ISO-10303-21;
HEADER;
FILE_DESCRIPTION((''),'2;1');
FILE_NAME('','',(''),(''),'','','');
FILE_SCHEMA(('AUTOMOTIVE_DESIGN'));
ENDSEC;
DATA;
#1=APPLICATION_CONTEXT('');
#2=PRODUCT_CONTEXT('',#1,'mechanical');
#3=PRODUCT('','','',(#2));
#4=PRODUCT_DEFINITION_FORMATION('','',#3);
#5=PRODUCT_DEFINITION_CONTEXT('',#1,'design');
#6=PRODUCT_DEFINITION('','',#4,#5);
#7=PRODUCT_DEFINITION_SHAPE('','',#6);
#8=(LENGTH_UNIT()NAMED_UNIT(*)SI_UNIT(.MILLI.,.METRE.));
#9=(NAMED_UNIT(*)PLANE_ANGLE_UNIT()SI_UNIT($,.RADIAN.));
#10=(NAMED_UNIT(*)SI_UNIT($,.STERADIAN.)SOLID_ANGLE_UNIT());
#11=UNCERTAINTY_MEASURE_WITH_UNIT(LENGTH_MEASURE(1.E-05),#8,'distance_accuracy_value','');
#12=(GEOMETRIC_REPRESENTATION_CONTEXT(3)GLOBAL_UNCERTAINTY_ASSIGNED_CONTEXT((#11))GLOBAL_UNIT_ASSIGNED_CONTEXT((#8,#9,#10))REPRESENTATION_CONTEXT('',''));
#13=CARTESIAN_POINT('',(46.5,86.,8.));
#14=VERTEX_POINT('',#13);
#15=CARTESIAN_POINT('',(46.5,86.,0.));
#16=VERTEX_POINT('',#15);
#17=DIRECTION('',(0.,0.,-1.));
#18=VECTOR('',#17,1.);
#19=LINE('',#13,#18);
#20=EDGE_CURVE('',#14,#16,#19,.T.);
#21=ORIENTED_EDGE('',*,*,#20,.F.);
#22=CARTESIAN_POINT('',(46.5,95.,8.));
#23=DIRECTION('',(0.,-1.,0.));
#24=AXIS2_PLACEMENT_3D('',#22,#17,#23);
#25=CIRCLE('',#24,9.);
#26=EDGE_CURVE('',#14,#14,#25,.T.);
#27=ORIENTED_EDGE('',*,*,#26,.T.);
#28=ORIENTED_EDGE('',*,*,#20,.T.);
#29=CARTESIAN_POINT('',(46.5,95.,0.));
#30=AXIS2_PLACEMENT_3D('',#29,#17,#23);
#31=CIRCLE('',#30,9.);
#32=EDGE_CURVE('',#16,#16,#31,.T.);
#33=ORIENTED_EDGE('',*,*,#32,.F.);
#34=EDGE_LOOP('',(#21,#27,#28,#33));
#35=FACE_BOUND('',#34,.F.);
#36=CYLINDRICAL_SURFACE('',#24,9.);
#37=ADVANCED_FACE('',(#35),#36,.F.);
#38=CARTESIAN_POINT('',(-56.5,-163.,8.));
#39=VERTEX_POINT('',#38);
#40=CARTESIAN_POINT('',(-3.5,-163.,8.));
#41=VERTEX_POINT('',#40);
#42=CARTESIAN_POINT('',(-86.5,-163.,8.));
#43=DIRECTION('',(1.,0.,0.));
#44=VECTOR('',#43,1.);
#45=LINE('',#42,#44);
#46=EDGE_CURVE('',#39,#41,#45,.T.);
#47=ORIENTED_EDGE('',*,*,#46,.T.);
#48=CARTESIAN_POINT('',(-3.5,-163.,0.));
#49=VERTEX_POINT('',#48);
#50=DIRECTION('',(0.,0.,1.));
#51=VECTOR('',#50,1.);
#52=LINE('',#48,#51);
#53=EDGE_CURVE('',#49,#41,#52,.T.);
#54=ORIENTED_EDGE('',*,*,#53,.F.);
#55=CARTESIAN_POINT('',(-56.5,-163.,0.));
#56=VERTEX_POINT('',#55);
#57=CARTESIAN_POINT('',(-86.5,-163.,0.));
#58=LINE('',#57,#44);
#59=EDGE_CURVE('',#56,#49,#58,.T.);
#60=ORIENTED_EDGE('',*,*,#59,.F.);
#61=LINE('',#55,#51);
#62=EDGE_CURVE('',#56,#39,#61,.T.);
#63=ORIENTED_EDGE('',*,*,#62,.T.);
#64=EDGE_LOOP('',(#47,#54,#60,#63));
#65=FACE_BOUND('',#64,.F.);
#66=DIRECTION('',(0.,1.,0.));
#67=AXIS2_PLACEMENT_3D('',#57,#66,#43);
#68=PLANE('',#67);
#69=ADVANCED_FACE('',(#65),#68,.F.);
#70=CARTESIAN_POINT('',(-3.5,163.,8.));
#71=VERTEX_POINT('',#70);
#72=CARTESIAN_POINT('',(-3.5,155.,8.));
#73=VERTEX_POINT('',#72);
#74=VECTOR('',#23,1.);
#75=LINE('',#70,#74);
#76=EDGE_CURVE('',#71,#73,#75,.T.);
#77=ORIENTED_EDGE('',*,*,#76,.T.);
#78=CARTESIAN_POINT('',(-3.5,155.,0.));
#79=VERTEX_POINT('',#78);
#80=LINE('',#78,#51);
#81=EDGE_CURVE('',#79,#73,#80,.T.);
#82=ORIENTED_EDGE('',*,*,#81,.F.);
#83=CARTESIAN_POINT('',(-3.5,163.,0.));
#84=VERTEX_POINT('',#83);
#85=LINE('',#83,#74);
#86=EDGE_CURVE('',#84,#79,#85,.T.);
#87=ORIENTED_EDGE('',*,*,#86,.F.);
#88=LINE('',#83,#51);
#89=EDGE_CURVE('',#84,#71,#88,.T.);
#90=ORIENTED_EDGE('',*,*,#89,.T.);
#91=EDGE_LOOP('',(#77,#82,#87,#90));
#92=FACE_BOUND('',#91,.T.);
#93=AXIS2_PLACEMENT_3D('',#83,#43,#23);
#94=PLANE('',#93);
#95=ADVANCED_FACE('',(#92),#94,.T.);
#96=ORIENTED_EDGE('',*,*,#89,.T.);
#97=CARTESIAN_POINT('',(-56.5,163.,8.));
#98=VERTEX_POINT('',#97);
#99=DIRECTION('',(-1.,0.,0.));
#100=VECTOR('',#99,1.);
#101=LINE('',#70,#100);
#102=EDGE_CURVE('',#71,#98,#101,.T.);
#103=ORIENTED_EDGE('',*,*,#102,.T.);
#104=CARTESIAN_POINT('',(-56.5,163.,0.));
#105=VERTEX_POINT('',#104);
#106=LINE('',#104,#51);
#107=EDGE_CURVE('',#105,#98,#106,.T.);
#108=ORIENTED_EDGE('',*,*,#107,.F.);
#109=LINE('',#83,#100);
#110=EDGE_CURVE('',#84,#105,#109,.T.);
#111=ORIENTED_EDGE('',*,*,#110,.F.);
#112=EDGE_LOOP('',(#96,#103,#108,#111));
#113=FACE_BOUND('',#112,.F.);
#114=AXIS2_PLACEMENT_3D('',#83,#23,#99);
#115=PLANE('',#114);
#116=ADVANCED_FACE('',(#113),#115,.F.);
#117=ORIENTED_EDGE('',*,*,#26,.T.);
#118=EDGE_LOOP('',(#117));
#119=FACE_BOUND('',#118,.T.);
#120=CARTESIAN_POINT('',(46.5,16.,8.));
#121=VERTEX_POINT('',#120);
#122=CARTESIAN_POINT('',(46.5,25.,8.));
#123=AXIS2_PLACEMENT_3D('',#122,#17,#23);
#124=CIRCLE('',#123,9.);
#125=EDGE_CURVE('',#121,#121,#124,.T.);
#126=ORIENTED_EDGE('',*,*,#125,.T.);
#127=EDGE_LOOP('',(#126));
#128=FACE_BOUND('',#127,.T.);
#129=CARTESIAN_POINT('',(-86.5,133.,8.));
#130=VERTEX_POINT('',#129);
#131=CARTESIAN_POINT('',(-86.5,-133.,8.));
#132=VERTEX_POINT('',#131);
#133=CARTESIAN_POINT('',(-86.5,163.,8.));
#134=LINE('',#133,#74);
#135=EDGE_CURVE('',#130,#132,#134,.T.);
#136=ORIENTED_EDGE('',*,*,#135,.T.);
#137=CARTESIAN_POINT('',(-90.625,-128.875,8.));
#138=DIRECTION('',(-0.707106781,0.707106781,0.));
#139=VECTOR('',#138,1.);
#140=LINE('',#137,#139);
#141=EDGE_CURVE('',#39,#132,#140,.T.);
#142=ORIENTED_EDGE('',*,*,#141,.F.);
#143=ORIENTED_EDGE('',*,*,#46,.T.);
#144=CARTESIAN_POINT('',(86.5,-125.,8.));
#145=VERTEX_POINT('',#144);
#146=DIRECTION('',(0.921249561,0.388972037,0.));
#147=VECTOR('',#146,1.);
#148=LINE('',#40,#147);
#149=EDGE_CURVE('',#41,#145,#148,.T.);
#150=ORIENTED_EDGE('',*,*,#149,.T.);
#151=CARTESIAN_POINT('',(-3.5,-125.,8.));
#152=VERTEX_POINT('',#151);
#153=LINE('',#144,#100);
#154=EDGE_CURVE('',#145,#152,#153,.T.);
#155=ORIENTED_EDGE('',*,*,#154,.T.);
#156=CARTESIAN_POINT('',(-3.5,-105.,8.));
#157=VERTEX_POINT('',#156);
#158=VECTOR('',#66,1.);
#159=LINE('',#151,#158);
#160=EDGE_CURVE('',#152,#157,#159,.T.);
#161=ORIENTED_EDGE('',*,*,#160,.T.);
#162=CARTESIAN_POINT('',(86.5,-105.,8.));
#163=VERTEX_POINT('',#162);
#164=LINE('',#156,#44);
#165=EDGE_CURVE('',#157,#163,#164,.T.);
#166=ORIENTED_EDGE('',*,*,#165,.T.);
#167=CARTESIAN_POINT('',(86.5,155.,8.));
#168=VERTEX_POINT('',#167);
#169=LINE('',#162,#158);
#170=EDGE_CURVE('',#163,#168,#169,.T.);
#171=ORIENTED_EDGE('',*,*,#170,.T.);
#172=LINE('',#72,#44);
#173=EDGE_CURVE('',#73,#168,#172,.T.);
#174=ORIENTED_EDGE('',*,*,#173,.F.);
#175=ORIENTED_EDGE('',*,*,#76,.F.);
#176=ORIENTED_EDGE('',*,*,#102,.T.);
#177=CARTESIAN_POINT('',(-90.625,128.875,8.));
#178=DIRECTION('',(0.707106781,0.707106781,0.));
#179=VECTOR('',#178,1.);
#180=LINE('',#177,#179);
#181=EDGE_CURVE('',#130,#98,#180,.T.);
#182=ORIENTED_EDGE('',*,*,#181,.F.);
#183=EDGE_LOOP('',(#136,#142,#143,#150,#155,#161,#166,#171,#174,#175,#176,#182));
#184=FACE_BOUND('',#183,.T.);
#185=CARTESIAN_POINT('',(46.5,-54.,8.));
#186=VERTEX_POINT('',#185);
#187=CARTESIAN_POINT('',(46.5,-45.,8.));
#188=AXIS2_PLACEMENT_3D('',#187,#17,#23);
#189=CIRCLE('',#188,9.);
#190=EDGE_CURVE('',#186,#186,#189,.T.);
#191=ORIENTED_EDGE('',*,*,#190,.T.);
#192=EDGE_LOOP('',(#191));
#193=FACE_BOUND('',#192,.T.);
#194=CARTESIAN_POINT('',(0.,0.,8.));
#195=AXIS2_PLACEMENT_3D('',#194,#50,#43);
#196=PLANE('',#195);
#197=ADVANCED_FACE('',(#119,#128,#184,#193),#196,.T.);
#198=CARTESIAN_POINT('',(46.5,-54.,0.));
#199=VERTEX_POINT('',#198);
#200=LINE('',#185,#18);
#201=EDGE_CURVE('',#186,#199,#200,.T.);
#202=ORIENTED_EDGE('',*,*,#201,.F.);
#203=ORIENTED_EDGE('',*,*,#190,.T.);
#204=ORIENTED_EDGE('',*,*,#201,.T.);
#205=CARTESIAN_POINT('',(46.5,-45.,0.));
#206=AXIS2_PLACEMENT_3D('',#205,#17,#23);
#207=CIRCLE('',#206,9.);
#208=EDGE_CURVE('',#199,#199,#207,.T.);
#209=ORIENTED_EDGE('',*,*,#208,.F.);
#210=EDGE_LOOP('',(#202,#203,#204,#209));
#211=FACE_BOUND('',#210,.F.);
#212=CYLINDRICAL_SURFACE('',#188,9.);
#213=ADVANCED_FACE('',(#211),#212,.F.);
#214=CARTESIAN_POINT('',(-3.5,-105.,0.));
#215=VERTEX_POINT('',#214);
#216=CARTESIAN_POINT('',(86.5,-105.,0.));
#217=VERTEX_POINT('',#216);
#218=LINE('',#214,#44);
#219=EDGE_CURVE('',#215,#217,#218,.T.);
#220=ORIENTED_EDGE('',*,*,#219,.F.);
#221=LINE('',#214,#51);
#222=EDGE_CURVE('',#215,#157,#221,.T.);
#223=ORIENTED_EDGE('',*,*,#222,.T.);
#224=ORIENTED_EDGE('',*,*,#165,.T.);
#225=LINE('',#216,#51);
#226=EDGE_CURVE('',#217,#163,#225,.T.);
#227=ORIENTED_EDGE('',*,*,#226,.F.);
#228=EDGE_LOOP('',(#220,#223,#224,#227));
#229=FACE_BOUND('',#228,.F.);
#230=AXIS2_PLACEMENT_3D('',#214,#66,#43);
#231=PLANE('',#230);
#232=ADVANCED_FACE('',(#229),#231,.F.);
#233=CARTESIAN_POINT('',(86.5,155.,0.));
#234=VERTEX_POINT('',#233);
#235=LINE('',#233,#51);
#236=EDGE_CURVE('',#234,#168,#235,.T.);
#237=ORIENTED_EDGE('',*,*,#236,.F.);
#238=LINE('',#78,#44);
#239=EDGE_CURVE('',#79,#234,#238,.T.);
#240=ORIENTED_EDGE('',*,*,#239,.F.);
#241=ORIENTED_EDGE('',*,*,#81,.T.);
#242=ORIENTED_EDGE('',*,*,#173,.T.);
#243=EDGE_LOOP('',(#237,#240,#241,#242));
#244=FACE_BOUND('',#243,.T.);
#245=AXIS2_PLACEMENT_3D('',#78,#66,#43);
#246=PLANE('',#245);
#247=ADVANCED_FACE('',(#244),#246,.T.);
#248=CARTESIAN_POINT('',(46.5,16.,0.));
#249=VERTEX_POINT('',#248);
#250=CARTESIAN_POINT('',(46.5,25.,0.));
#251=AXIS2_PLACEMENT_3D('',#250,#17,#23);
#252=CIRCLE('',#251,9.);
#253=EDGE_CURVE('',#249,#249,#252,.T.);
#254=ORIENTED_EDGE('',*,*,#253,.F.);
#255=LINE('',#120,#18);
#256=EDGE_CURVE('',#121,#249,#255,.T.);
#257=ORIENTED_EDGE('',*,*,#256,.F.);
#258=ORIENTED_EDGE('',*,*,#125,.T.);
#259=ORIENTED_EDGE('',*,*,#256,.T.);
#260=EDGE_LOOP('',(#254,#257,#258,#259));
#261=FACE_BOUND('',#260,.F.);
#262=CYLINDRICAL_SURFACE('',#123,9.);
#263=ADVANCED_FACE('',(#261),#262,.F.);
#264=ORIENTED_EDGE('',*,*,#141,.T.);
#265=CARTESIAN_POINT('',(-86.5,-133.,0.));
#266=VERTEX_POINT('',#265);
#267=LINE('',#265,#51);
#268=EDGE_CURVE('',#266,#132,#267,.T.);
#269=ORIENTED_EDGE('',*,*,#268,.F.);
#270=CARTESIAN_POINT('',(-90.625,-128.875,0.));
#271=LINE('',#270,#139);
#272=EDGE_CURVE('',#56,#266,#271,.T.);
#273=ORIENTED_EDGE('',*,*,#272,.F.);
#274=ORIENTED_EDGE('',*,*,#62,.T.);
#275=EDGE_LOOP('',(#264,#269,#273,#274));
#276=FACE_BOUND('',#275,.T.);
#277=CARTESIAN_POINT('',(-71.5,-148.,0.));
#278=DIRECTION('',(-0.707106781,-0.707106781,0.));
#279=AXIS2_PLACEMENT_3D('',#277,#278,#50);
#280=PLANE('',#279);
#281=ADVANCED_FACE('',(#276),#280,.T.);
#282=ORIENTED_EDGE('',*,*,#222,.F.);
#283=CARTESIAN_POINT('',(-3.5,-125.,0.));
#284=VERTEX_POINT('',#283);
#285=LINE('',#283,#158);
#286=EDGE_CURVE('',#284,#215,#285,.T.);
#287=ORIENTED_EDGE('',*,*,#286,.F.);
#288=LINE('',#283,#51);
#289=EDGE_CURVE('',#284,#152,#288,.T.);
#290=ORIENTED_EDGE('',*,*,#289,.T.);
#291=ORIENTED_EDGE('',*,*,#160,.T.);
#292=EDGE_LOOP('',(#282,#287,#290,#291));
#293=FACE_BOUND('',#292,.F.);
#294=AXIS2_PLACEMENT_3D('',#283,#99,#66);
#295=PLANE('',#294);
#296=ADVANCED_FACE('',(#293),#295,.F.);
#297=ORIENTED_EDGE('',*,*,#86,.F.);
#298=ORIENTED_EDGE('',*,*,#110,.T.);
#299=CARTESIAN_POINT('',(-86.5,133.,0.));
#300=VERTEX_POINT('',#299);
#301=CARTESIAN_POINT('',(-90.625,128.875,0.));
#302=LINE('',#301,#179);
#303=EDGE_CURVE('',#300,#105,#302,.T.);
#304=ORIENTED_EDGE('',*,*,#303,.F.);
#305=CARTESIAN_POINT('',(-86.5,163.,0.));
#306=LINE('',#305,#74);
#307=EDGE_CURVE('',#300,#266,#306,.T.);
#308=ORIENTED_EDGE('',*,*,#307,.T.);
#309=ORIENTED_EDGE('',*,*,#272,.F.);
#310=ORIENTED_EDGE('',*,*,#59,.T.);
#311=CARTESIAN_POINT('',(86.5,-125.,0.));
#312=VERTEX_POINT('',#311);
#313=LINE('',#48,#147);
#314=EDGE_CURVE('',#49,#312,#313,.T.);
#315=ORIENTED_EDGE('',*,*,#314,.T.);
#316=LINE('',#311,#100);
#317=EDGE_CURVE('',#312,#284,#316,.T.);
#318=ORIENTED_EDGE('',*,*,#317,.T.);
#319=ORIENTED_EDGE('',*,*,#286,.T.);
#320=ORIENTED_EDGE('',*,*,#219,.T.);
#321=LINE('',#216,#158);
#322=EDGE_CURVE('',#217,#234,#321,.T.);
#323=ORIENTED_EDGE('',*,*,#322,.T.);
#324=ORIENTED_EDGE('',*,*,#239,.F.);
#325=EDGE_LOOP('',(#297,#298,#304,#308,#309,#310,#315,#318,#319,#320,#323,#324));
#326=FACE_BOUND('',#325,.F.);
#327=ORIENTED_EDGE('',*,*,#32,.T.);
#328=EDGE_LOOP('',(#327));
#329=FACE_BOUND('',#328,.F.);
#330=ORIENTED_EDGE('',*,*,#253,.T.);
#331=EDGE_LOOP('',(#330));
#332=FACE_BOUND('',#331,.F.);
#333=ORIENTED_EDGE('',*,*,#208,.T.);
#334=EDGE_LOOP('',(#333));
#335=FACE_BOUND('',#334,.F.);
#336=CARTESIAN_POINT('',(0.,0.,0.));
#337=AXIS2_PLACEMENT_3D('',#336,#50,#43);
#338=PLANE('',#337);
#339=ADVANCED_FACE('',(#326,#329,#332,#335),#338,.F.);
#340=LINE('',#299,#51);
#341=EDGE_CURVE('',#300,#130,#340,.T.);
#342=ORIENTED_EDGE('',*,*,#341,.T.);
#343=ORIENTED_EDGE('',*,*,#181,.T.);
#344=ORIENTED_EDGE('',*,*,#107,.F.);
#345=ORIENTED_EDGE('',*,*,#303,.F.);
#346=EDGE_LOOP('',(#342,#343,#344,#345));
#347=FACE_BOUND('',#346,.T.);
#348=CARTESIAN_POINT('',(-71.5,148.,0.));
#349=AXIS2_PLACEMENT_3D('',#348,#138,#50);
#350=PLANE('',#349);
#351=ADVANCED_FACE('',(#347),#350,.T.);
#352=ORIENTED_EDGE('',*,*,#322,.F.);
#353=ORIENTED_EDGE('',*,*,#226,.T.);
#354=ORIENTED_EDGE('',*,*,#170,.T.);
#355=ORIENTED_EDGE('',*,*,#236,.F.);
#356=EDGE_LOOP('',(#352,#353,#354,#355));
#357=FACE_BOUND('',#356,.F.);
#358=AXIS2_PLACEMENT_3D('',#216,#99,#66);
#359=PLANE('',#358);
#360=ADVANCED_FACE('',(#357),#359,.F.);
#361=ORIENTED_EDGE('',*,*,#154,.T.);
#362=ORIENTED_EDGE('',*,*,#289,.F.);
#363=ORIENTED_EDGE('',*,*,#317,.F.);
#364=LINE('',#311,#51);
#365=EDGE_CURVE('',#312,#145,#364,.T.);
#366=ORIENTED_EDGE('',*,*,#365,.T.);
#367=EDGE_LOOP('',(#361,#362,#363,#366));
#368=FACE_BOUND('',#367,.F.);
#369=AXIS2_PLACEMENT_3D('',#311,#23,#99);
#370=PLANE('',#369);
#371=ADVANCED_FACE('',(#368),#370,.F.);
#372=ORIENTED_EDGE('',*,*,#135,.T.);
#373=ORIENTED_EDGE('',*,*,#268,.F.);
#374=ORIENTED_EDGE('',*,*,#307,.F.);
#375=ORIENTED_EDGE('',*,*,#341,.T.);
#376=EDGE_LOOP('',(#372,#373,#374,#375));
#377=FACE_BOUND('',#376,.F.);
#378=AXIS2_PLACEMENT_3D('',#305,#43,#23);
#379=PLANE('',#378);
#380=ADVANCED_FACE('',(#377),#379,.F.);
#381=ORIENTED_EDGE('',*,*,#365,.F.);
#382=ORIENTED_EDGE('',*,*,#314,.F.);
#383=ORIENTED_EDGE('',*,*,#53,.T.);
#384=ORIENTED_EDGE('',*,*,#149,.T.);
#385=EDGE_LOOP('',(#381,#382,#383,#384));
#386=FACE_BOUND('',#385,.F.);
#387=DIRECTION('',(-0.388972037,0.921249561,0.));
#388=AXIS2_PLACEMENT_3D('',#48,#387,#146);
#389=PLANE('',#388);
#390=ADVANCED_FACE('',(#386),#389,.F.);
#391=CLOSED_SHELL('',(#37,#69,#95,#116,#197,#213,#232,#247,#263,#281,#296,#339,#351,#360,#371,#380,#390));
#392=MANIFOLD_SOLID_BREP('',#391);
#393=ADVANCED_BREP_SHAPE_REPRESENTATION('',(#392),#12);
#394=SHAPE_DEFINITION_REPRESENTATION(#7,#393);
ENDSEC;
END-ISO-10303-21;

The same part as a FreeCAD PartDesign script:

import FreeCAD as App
import Part
import Sketcher
from FreeCAD import Vector
Q = App.Units.Quantity


def edges_at(feature, points):
    """Names of the edges that pass closest to the given points."""
    edges = feature.Shape.Edges
    near = lambda p: min(range(len(edges)), key=lambda i: edges[i].distToShape(Part.Vertex(*p))[0])
    return sorted({f"Edge{near(p) + 1}" for p in points})

doc = App.newDocument("Part")
params = doc.addObject("Spreadsheet::Sheet", "Params")
for row, (alias, value) in enumerate([
    ("sketch1_width", "83 mm"),
    ("sketch1_width2", "90 mm"),
    ("sketch1_height", "326 mm"),
    ("sketch1_height2", "20 mm"),
    ("sketch1_height3", "8 mm"),
    ("pad1_length", "8 mm"),
    ("chamfer_size", "30 mm"),
    ("sketch2_diameter", "18 mm"),
    ("hole_diameter", "18 mm"),
], start=1):
    params.set(f"A{row}", alias)
    params.set(f"B{row}", "=" + value)
    params.setAlias(f"B{row}", alias)

body = doc.addObject("PartDesign::Body", "Body")

sketch1 = body.newObject("Sketcher::SketchObject", "Sketch")
sketch1.AttachmentSupport = (doc.getObject("XY_Plane"), [""])
sketch1.MapMode = "FlatFace"
sketch1.addGeometry(Part.LineSegment(Vector(-3.5, 155, 0), Vector(-3.5, 163, 0)), False)
sketch1.addGeometry(Part.LineSegment(Vector(-3.5, 163, 0), Vector(-86.5, 163, 0)), False)
sketch1.addGeometry(Part.LineSegment(Vector(-86.5, 163, 0), Vector(-86.5, -163, 0)), False)
sketch1.addGeometry(Part.LineSegment(Vector(-86.5, -163, 0), Vector(-3.5, -163, 0)), False)
sketch1.addGeometry(Part.LineSegment(Vector(-3.5, -163, 0), Vector(86.5, -125, 0)), False)
sketch1.addGeometry(Part.LineSegment(Vector(86.5, -125, 0), Vector(-3.5, -125, 0)), False)
sketch1.addGeometry(Part.LineSegment(Vector(-3.5, -125, 0), Vector(-3.5, -105, 0)), False)
sketch1.addGeometry(Part.LineSegment(Vector(-3.5, -105, 0), Vector(86.5, -105, 0)), False)
sketch1.addGeometry(Part.LineSegment(Vector(86.5, -105, 0), Vector(86.5, 155, 0)), False)
sketch1.addGeometry(Part.LineSegment(Vector(86.5, 155, 0), Vector(-3.5, 155, 0)), False)
sketch1.addConstraint(Sketcher.Constraint("Coincident", 0, 2, 1, 1))
sketch1.addConstraint(Sketcher.Constraint("Coincident", 1, 2, 2, 1))
sketch1.addConstraint(Sketcher.Constraint("Coincident", 2, 2, 3, 1))
sketch1.addConstraint(Sketcher.Constraint("Coincident", 3, 2, 4, 1))
sketch1.addConstraint(Sketcher.Constraint("Coincident", 4, 2, 5, 1))
sketch1.addConstraint(Sketcher.Constraint("Coincident", 5, 2, 6, 1))
sketch1.addConstraint(Sketcher.Constraint("Coincident", 6, 2, 7, 1))
sketch1.addConstraint(Sketcher.Constraint("Coincident", 7, 2, 8, 1))
sketch1.addConstraint(Sketcher.Constraint("Coincident", 8, 2, 9, 1))
sketch1.addConstraint(Sketcher.Constraint("Coincident", 9, 2, 0, 1))
sketch1.addConstraint(Sketcher.Constraint("Vertical", 0))
sketch1.addConstraint(Sketcher.Constraint("Horizontal", 1))
sketch1.addConstraint(Sketcher.Constraint("Vertical", 2))
sketch1.addConstraint(Sketcher.Constraint("Horizontal", 3))
sketch1.addConstraint(Sketcher.Constraint("Horizontal", 5))
sketch1.addConstraint(Sketcher.Constraint("Vertical", 6))
sketch1.addConstraint(Sketcher.Constraint("Horizontal", 7))
sketch1.addConstraint(Sketcher.Constraint("Vertical", 8))
sketch1.addConstraint(Sketcher.Constraint("Horizontal", 9))
sketch1.addConstraint(Sketcher.Constraint("Symmetric", 0, 2, 3, 2, -1))
sketch1.addConstraint(Sketcher.Constraint("Vertical", 3, 2, 5, 2))
sketch1.addConstraint(Sketcher.Constraint("Vertical", 4, 2, 7, 2))
sketch1.addConstraint(Sketcher.Constraint("DistanceX", 1, 2, 1, 1, Q("83 mm")))
sketch1.addConstraint(Sketcher.Constraint("DistanceX", 5, 2, 5, 1, Q("90 mm")))
sketch1.addConstraint(Sketcher.Constraint("DistanceY", 2, 2, 2, 1, Q("326 mm")))
sketch1.addConstraint(Sketcher.Constraint("DistanceY", 6, 1, 6, 2, Q("20 mm")))
sketch1.addConstraint(Sketcher.Constraint("DistanceY", 0, 1, 0, 2, Q("8 mm")))
sketch1.addConstraint(Sketcher.Constraint("DistanceY", 8, 1, 8, 2, Q("260 mm")))
sketch1.addConstraint(Sketcher.Constraint("DistanceX", 0, 2, -1, 1, Q("3.5 mm")))
sketch1.setExpression("Constraints[22]", "Params.sketch1_width")
sketch1.setExpression("Constraints[23]", "Params.sketch1_width2")
sketch1.setExpression("Constraints[24]", "Params.sketch1_height")
sketch1.setExpression("Constraints[25]", "Params.sketch1_height2")
sketch1.setExpression("Constraints[26]", "Params.sketch1_height3")
pad1 = body.newObject("PartDesign::Pad", "Pad")
pad1.Profile = sketch1
pad1.setExpression("Length", "Params.pad1_length")
doc.recompute()

chamfer = body.newObject("PartDesign::Chamfer", "Chamfer")
chamfer.Base = (pad1, edges_at(pad1, [(-86.5, -163, 4), (-86.5, 163, 4)]))
chamfer.setExpression("Size", "Params.chamfer_size")

sketch2 = body.newObject("Sketcher::SketchObject", "Sketch001")
sketch2.AttachmentSupport = (doc.getObject("XY_Plane"), [""])
sketch2.MapMode = "FlatFace"
sketch2.AttachmentOffset = App.Placement(Vector(0, 0, 8), App.Rotation())
sketch2.addGeometry(Part.Circle(Vector(46.5, 95, 0), Vector(0, 0, 1), 9), False)
sketch2.addGeometry(Part.Circle(Vector(46.5, 25, 0), Vector(0, 0, 1), 9), False)
sketch2.addGeometry(Part.Circle(Vector(46.5, -45, 0), Vector(0, 0, 1), 9), False)
sketch2.addConstraint(Sketcher.Constraint("Equal", 0, 1))
sketch2.addConstraint(Sketcher.Constraint("Equal", 1, 2))
sketch2.addConstraint(Sketcher.Constraint("Vertical", 0, 3, 1, 3))
sketch2.addConstraint(Sketcher.Constraint("Vertical", 1, 3, 2, 3))
sketch2.addConstraint(Sketcher.Constraint("Diameter", 0, Q("18 mm")))
sketch2.addConstraint(Sketcher.Constraint("DistanceY", -1, 1, 0, 3, Q("95 mm")))
sketch2.addConstraint(Sketcher.Constraint("DistanceY", -1, 1, 1, 3, Q("25 mm")))
sketch2.addConstraint(Sketcher.Constraint("DistanceY", 2, 3, -1, 1, Q("45 mm")))
sketch2.addConstraint(Sketcher.Constraint("DistanceX", -1, 1, 0, 3, Q("46.5 mm")))
sketch2.setExpression("Constraints[4]", "Params.sketch2_diameter")
doc.recompute()
hole = body.newObject("PartDesign::Hole", "Hole")
hole.Profile = sketch2
hole.ThreadType = "None"
hole.setExpression("Diameter", "Params.hole_diameter")
hole.DepthType = "ThroughAll"

doc.recompute()
